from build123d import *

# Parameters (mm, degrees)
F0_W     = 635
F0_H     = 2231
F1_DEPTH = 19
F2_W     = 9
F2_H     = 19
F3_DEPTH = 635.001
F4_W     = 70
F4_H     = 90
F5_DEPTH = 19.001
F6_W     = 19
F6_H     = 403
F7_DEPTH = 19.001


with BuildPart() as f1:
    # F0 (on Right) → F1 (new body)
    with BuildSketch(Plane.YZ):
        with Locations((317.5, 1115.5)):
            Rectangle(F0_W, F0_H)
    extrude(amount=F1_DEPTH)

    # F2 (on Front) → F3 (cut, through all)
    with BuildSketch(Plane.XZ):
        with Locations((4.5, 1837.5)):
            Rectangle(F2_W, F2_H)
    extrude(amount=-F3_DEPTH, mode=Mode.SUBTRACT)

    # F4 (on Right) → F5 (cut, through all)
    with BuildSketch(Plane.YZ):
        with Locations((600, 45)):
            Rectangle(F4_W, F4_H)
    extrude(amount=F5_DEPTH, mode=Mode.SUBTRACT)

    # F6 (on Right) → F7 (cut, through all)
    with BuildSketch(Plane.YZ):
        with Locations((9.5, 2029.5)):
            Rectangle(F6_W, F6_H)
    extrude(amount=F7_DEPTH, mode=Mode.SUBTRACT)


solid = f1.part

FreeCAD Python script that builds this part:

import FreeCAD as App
import Part
import Sketcher


def add_polygon(sketch, points):
    """Adds a closed chain of lines whose ends are joined by coincident constraints."""
    first, n = sketch.GeometryCount, len(points)
    for a, b in zip(points, points[1:] + points[:1]):
        sketch.addGeometry(Part.LineSegment(App.Vector(*a, 0), App.Vector(*b, 0)), False)
    for i in range(n):
        sketch.addConstraint(Sketcher.Constraint("Coincident", first + i, 2, first + (i + 1) % n, 1))

doc = App.newDocument("Part")
body = doc.addObject("PartDesign::Body", "Body")

# Sketch on YZ plane
sketch1 = body.newObject("Sketcher::SketchObject", "Sketch")
sketch1.AttachmentSupport = (doc.getObject("YZ_Plane"), [""])
sketch1.MapMode = "FlatFace"
add_polygon(sketch1, [(0, 2231), (0, 0), (635, 0), (635, 2231)])  # lines 0-3
sketch1.addConstraint([
    Sketcher.Constraint("Vertical", 0),
    Sketcher.Constraint("Horizontal", 1),
    Sketcher.Constraint("Vertical", 2),
    Sketcher.Constraint("Horizontal", 3),
    Sketcher.Constraint("Coincident", 0, 2, -1, 1),
    Sketcher.Constraint("DistanceX", 1, 1, 1, 2, 635.0),
    Sketcher.Constraint("DistanceY", 0, 2, 0, 1, 2231.0),
])
pad1 = body.newObject("PartDesign::Pad", "Pad")
pad1.Profile = sketch1
pad1.Length = 19

# Sketch on XZ plane
sketch2 = body.newObject("Sketcher::SketchObject", "Sketch001")
sketch2.AttachmentSupport = (doc.getObject("XZ_Plane"), [""])
sketch2.MapMode = "FlatFace"
add_polygon(sketch2, [(0, 1847), (0, 1828), (9, 1828), (9, 1847)])  # lines 0-3
sketch2.addConstraint([
    Sketcher.Constraint("Vertical", 0),
    Sketcher.Constraint("Horizontal", 1),
    Sketcher.Constraint("Vertical", 2),
    Sketcher.Constraint("Horizontal", 3),
    Sketcher.Constraint("PointOnObject", 0, 2, -2),
    Sketcher.Constraint("DistanceX", 1, 1, 1, 2, 9.0),
    Sketcher.Constraint("DistanceY", 0, 2, 0, 1, 19.0),
    Sketcher.Constraint("DistanceY", -1, 1, 0, 2, 1828.0),
])
pocket1 = body.newObject("PartDesign::Pocket", "Pocket")
pocket1.Profile = sketch2
pocket1.Type = "ThroughAll"

# Sketch on YZ plane
sketch3 = body.newObject("Sketcher::SketchObject", "Sketch002")
sketch3.AttachmentSupport = (doc.getObject("YZ_Plane"), [""])
sketch3.MapMode = "FlatFace"
add_polygon(sketch3, [(565, 90), (565, 0), (635, 0), (635, 90)])  # lines 0-3
sketch3.addConstraint([
    Sketcher.Constraint("Vertical", 0),
    Sketcher.Constraint("Horizontal", 1),
    Sketcher.Constraint("Vertical", 2),
    Sketcher.Constraint("Horizontal", 3),
    Sketcher.Constraint("PointOnObject", 0, 2, -1),
    Sketcher.Constraint("DistanceX", 1, 1, 1, 2, 70.0),
    Sketcher.Constraint("DistanceY", 0, 2, 0, 1, 90.0),
    Sketcher.Constraint("DistanceX", -1, 1, 0, 2, 565.0),
])
pocket2 = body.newObject("PartDesign::Pocket", "Pocket001")
pocket2.Profile = sketch3
pocket2.Type = "ThroughAll"
pocket2.Reversed = True

# Sketch on YZ plane
sketch4 = body.newObject("Sketcher::SketchObject", "Sketch003")
sketch4.AttachmentSupport = (doc.getObject("YZ_Plane"), [""])
sketch4.MapMode = "FlatFace"
add_polygon(sketch4, [(0, 2231), (0, 1828), (19, 1828), (19, 2231)])  # lines 0-3
sketch4.addConstraint([
    Sketcher.Constraint("Vertical", 0),
    Sketcher.Constraint("Horizontal", 1),
    Sketcher.Constraint("Vertical", 2),
    Sketcher.Constraint("Horizontal", 3),
    Sketcher.Constraint("PointOnObject", 0, 2, -2),
    Sketcher.Constraint("DistanceX", 1, 1, 1, 2, 19.0),
    Sketcher.Constraint("DistanceY", 0, 2, 0, 1, 403.0),
    Sketcher.Constraint("DistanceY", -1, 1, 0, 2, 1828.0),
])
pocket3 = body.newObject("PartDesign::Pocket", "Pocket002")
pocket3.Profile = sketch4
pocket3.Type = "ThroughAll"
pocket3.Reversed = True

doc.recompute()
